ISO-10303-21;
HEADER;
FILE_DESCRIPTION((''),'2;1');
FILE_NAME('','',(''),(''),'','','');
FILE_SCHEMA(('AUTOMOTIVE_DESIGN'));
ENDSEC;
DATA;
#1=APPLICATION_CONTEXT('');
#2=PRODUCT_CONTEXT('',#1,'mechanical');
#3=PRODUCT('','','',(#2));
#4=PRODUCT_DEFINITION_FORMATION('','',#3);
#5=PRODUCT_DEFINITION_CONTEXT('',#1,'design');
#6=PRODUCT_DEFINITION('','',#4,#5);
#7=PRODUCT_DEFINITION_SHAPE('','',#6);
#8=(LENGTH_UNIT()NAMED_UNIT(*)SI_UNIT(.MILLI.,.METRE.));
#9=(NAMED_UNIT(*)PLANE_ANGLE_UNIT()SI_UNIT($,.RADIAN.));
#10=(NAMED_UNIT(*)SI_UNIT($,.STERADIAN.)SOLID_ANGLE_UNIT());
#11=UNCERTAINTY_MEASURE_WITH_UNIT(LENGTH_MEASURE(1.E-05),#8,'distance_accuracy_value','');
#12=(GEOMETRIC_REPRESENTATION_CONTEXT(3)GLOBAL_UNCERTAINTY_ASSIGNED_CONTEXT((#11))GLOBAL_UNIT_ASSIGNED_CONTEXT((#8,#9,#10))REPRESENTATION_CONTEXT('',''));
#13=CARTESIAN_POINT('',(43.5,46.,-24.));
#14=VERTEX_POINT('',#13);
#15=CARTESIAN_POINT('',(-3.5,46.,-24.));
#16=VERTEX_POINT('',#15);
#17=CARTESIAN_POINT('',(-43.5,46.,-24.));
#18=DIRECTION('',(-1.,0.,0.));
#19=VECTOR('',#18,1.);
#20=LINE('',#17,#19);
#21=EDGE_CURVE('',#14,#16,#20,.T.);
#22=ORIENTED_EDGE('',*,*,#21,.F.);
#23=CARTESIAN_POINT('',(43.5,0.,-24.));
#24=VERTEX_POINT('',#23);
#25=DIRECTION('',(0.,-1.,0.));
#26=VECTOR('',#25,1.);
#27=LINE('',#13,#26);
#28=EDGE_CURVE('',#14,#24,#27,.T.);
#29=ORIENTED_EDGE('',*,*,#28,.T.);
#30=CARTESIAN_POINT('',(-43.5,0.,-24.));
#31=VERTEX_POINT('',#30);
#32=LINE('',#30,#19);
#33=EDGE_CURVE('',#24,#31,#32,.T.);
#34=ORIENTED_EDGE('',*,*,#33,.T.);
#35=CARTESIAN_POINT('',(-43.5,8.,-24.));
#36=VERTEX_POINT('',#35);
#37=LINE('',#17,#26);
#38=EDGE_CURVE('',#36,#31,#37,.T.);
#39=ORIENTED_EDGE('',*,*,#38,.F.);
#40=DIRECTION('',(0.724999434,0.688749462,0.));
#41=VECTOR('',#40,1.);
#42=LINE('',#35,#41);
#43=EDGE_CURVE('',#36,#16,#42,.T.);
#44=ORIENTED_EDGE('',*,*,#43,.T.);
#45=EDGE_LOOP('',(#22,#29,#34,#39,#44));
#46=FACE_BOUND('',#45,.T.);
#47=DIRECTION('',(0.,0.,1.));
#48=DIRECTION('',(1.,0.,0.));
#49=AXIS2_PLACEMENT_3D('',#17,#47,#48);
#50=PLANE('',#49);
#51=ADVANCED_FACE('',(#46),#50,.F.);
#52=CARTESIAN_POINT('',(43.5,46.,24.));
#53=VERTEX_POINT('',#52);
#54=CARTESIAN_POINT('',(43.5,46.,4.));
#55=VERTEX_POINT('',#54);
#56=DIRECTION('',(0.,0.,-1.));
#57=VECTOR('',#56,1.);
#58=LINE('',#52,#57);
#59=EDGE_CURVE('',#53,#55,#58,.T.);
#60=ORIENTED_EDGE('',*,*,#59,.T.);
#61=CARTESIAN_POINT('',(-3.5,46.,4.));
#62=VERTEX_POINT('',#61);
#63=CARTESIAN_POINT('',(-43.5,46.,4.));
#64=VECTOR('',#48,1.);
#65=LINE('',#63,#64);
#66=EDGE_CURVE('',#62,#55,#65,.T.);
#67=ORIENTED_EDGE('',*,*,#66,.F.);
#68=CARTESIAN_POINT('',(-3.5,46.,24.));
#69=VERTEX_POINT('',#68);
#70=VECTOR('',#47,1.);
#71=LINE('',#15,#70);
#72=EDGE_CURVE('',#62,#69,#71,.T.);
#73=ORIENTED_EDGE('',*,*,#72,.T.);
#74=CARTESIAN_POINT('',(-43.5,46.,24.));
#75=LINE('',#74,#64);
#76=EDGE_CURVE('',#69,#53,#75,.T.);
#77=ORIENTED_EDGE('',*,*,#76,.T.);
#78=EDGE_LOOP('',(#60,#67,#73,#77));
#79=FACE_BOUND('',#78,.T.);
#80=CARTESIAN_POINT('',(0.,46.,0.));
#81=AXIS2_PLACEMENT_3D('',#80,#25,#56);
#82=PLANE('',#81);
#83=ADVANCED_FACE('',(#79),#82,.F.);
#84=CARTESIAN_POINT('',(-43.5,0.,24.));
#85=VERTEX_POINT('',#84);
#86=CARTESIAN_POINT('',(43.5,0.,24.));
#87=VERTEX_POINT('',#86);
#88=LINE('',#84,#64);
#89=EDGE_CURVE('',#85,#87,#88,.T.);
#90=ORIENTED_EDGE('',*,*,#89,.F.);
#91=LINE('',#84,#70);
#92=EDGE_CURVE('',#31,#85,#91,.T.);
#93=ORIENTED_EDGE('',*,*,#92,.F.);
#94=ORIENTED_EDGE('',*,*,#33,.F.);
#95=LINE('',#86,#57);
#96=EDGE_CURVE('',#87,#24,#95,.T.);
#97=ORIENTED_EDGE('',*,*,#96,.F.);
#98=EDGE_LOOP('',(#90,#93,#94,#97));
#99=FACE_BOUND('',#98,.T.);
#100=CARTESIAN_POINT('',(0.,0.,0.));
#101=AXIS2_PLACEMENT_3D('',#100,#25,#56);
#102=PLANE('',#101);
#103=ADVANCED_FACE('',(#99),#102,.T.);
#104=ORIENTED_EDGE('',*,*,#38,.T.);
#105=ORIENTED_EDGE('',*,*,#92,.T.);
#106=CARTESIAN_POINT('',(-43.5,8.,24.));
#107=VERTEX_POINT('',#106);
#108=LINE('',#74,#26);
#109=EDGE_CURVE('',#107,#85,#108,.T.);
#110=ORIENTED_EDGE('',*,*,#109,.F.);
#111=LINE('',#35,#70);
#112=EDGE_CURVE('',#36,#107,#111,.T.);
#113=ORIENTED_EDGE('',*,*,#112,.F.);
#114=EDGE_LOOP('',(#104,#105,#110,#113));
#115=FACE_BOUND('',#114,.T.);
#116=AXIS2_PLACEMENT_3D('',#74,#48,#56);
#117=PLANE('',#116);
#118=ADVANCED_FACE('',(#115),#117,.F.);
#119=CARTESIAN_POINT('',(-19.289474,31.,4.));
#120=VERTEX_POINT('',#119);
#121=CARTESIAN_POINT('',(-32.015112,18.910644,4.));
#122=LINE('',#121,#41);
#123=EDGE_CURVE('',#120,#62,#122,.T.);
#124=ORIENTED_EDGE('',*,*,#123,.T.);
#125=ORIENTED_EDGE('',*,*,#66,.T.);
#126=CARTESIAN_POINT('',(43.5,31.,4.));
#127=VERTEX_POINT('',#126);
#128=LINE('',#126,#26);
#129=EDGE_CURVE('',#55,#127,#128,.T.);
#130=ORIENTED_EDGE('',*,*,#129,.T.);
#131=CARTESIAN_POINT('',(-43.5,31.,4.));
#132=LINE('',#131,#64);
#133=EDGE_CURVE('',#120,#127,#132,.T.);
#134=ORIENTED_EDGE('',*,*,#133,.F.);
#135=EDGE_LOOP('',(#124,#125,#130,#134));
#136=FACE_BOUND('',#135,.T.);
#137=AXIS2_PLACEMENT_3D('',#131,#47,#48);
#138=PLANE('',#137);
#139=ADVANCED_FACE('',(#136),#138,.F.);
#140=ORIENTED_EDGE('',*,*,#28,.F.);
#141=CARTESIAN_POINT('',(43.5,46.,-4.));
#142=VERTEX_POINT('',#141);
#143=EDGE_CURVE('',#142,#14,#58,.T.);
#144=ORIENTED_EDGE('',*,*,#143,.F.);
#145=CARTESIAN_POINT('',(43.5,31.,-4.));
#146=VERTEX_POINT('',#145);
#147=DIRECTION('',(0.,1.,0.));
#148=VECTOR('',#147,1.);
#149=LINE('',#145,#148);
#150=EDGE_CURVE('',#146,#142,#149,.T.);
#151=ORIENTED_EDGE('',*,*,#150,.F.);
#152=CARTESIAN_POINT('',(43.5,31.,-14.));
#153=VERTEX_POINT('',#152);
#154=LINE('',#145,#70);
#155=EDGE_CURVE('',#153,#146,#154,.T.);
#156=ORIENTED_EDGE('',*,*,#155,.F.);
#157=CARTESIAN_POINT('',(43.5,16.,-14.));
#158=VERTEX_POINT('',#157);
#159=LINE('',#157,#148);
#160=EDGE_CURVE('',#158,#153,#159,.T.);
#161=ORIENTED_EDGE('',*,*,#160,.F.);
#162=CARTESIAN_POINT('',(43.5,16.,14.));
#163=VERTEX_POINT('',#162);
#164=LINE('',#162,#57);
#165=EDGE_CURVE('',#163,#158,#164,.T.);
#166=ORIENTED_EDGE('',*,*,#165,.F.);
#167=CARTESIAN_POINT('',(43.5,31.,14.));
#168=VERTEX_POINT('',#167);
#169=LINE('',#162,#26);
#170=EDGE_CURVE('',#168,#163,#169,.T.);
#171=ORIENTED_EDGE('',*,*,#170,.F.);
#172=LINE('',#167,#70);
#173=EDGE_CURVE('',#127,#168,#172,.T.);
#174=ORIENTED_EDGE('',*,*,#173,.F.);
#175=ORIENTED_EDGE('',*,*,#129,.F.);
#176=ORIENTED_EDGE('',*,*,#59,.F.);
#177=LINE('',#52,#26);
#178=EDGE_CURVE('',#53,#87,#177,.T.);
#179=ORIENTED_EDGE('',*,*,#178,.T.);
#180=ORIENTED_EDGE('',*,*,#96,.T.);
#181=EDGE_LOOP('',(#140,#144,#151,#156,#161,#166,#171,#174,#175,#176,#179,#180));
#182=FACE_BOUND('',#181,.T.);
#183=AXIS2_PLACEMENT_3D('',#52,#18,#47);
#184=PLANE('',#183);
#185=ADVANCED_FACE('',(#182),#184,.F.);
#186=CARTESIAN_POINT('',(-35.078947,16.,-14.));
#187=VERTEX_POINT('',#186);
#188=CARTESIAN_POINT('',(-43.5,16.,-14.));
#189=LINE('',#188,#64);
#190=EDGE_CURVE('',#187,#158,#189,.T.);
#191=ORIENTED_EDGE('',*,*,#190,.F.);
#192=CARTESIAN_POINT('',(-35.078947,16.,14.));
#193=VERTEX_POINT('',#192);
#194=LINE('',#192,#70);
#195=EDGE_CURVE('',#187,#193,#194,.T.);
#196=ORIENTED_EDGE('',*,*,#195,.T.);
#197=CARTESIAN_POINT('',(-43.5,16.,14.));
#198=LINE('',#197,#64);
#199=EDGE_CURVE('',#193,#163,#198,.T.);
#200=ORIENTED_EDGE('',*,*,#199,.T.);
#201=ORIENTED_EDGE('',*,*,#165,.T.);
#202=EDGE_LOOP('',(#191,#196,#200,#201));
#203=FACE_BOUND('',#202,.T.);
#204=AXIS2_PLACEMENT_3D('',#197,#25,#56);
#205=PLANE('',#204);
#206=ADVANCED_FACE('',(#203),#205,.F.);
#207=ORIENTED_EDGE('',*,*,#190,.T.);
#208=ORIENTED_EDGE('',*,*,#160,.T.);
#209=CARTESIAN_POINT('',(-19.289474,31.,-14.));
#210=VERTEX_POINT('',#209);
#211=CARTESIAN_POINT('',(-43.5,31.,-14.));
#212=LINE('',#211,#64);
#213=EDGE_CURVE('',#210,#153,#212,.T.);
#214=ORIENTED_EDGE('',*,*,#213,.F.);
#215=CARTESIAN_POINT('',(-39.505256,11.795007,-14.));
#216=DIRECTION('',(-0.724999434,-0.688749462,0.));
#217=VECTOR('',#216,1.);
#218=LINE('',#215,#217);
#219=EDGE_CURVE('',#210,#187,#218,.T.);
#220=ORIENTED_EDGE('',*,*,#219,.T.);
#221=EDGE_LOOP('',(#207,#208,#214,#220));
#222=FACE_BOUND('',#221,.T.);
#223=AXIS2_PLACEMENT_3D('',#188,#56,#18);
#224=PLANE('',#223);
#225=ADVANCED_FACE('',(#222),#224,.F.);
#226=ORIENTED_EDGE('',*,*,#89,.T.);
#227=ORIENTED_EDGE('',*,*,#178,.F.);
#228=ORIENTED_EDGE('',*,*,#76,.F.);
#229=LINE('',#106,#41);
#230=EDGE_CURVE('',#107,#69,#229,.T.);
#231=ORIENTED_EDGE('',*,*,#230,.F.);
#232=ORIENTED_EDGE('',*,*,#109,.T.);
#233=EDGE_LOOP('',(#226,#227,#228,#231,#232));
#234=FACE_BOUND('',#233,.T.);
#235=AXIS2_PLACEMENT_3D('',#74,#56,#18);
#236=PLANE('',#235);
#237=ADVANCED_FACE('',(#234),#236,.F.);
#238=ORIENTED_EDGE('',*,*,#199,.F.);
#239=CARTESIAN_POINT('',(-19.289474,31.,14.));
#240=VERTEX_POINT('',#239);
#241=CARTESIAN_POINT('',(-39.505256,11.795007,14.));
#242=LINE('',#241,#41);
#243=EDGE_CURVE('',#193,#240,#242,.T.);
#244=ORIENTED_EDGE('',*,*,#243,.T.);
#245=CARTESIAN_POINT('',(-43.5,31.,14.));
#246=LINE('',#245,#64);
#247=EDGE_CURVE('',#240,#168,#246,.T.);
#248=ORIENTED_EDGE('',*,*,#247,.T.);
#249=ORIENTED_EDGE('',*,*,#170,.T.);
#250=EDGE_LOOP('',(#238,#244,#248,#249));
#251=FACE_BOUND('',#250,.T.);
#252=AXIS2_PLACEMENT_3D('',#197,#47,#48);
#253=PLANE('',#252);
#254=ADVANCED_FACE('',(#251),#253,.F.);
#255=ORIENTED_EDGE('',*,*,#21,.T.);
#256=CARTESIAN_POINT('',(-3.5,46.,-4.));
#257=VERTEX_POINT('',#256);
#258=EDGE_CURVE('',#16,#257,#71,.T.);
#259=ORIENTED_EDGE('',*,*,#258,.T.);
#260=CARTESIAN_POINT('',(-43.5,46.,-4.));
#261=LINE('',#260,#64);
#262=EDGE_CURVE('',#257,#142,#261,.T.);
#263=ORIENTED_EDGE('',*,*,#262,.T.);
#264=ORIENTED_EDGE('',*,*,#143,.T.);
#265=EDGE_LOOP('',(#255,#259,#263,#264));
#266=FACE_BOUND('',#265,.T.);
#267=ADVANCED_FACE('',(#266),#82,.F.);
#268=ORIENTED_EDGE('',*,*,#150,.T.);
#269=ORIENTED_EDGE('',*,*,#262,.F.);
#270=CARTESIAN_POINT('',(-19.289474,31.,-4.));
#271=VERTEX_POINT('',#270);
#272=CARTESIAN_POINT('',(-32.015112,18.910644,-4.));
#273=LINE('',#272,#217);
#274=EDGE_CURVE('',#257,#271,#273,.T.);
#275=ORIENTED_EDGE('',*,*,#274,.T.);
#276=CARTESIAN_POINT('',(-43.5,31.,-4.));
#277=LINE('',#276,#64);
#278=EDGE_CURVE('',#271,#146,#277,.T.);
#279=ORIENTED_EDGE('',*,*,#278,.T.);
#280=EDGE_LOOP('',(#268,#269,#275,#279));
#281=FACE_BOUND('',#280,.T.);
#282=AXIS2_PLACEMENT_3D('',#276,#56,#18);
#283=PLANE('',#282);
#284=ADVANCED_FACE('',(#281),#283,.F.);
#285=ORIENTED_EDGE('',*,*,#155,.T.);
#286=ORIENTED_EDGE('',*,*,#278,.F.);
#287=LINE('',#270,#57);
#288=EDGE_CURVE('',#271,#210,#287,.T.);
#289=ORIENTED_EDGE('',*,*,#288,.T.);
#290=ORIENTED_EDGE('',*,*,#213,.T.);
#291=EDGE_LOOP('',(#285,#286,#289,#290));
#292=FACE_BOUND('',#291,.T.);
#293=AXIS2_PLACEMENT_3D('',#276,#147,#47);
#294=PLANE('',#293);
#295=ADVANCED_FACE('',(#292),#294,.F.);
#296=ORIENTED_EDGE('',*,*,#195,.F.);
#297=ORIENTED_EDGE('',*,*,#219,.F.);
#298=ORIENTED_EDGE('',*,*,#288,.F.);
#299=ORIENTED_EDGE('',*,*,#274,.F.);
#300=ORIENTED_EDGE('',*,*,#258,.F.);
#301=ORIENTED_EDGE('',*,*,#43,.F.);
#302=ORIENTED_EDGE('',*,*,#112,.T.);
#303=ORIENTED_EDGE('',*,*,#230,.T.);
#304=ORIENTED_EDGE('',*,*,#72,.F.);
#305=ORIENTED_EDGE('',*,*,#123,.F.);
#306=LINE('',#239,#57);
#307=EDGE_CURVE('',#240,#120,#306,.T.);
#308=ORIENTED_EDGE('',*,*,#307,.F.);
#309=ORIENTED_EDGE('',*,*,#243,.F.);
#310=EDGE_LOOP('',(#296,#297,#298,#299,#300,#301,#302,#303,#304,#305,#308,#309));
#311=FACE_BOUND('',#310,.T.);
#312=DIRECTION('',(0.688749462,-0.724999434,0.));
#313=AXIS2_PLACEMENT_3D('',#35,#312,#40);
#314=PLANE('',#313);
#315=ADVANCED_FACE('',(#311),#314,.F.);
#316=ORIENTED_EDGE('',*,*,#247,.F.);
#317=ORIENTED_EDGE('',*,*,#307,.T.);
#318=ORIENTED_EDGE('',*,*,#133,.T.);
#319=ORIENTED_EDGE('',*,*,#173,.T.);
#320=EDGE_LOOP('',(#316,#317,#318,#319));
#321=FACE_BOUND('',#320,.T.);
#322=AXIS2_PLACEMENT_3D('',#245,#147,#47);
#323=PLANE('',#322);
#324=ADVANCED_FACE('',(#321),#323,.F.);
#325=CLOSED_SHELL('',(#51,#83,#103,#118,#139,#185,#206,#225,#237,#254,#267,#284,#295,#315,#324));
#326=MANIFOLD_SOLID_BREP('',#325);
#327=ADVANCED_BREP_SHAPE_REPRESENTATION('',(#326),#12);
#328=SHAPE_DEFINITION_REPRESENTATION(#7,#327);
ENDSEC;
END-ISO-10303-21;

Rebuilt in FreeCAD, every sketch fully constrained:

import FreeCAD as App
import Part
import Sketcher

V = App.Vector
Q = App.Units.Quantity

doc = App.newDocument("Part")
body = doc.addObject("PartDesign::Body", "Body")

# Sketch on XZ plane
sketch1 = body.newObject("Sketcher::SketchObject", "Sketch")
sketch1.AttachmentSupport = (doc.getObject("XZ_Plane"), [""])
sketch1.MapMode = "FlatFace"
sketch1.addGeometry([
    Part.LineSegment(V(-43.5, -24, 0), V(-43.5, 24, 0)),
    Part.LineSegment(V(-43.5, 24, 0), V(43.5, 24, 0)),
    Part.LineSegment(V(43.5, 24, 0), V(43.5, -24, 0)),
    Part.LineSegment(V(43.5, -24, 0), V(-43.5, -24, 0)),
], False)
sketch1.addConstraint([
    Sketcher.Constraint("Coincident", 0, 2, 1, 1),
    Sketcher.Constraint("Coincident", 1, 2, 2, 1),
    Sketcher.Constraint("Coincident", 2, 2, 3, 1),
    Sketcher.Constraint("Coincident", 3, 2, 0, 1),
    Sketcher.Constraint("Vertical", 0),
    Sketcher.Constraint("Horizontal", 1),
    Sketcher.Constraint("Vertical", 2),
    Sketcher.Constraint("Horizontal", 3),
    Sketcher.Constraint("Symmetric", 0, 2, 2, 2, -1, 1),
    Sketcher.Constraint("DistanceX", 1, 1, 1, 2, Q("87 mm")),
    Sketcher.Constraint("DistanceY", 0, 1, 0, 2, Q("48 mm")),
])
pad1 = body.newObject("PartDesign::Pad", "Pad")
pad1.Profile = sketch1
pad1.Length = 46
pad1.Reversed = True

# Sketch on YZ plane
sketch2 = body.newObject("Sketcher::SketchObject", "Sketch001")
sketch2.AttachmentSupport = (doc.getObject("YZ_Plane"), [""])
sketch2.MapMode = "FlatFace"
sketch2.addGeometry([
    Part.LineSegment(V(31, -14, 0), V(31, -4, 0)),  # 0
    Part.LineSegment(V(31, -4, 0), V(46, -4, 0)),  # 1
    Part.LineSegment(V(46, -4, 0), V(46, 4, 0)),  # 2
    Part.LineSegment(V(46, 4, 0), V(31, 4, 0)),  # 3
    Part.LineSegment(V(31, 4, 0), V(31, 14, 0)),  # 4
    Part.LineSegment(V(31, 14, 0), V(16, 14, 0)),  # 5
    Part.LineSegment(V(16, 14, 0), V(16, -14, 0)),  # 6
    Part.LineSegment(V(16, -14, 0), V(31, -14, 0)),  # 7
], False)
sketch2.addConstraint([
    Sketcher.Constraint("Coincident", 0, 2, 1, 1),
    Sketcher.Constraint("Coincident", 1, 2, 2, 1),
    Sketcher.Constraint("Coincident", 2, 2, 3, 1),
    Sketcher.Constraint("Coincident", 3, 2, 4, 1),
    Sketcher.Constraint("Coincident", 4, 2, 5, 1),
    Sketcher.Constraint("Coincident", 5, 2, 6, 1),
    Sketcher.Constraint("Coincident", 6, 2, 7, 1),
    Sketcher.Constraint("Coincident", 7, 2, 0, 1),
    Sketcher.Constraint("Vertical", 0),
    Sketcher.Constraint("Horizontal", 1),
    Sketcher.Constraint("Vertical", 2),
    Sketcher.Constraint("Horizontal", 3),
    Sketcher.Constraint("Vertical", 4),
    Sketcher.Constraint("Horizontal", 5),
    Sketcher.Constraint("Vertical", 6),
    Sketcher.Constraint("Horizontal", 7),
    Sketcher.Constraint("Symmetric", 0, 2, 3, 2, -1),
    Sketcher.Constraint("Equal", 3, 5),
    Sketcher.Constraint("Equal", 0, 4),
    Sketcher.Constraint("DistanceX", 1, 1, 1, 2, Q("15 mm")),
    Sketcher.Constraint("DistanceY", 0, 1, 0, 2, Q("10 mm")),
    Sketcher.Constraint("DistanceY", 2, 1, 2, 2, Q("8 mm")),
    Sketcher.Constraint("DistanceX", -1, 1, 0, 2, Q("31 mm")),
])
pocket1 = body.newObject("PartDesign::Pocket", "Pocket")
pocket1.Profile = sketch2
pocket1.Type = "ThroughAll"
pocket1.Midplane = True

# Sketch on XY plane
sketch3 = body.newObject("Sketcher::SketchObject", "Sketch002")
sketch3.AttachmentSupport = (doc.getObject("XY_Plane"), [""])
sketch3.MapMode = "FlatFace"
sketch3.addGeometry([
    Part.LineSegment(V(-43.5, 46, 0), V(-43.5, 8, 0)),
    Part.LineSegment(V(-43.5, 8, 0), V(-3.5, 46, 0)),
    Part.LineSegment(V(-3.5, 46, 0), V(-43.5, 46, 0)),
], False)
sketch3.addConstraint([
    Sketcher.Constraint("Coincident", 0, 2, 1, 1),
    Sketcher.Constraint("Coincident", 1, 2, 2, 1),
    Sketcher.Constraint("Coincident", 2, 2, 0, 1),
    Sketcher.Constraint("Vertical", 0),
    Sketcher.Constraint("Horizontal", 2),
    Sketcher.Constraint("DistanceX", 2, 2, 2, 1, Q("40 mm")),
    Sketcher.Constraint("DistanceY", 0, 2, 0, 1, Q("38 mm")),
    Sketcher.Constraint("DistanceY", -1, 1, 0, 2, Q("8 mm")),
    Sketcher.Constraint("DistanceX", 0, 2, -1, 1, Q("43.5 mm")),
])
pocket2 = body.newObject("PartDesign::Pocket", "Pocket001")
pocket2.Profile = sketch3
pocket2.Type = "ThroughAll"
pocket2.Midplane = True

doc.recompute()
